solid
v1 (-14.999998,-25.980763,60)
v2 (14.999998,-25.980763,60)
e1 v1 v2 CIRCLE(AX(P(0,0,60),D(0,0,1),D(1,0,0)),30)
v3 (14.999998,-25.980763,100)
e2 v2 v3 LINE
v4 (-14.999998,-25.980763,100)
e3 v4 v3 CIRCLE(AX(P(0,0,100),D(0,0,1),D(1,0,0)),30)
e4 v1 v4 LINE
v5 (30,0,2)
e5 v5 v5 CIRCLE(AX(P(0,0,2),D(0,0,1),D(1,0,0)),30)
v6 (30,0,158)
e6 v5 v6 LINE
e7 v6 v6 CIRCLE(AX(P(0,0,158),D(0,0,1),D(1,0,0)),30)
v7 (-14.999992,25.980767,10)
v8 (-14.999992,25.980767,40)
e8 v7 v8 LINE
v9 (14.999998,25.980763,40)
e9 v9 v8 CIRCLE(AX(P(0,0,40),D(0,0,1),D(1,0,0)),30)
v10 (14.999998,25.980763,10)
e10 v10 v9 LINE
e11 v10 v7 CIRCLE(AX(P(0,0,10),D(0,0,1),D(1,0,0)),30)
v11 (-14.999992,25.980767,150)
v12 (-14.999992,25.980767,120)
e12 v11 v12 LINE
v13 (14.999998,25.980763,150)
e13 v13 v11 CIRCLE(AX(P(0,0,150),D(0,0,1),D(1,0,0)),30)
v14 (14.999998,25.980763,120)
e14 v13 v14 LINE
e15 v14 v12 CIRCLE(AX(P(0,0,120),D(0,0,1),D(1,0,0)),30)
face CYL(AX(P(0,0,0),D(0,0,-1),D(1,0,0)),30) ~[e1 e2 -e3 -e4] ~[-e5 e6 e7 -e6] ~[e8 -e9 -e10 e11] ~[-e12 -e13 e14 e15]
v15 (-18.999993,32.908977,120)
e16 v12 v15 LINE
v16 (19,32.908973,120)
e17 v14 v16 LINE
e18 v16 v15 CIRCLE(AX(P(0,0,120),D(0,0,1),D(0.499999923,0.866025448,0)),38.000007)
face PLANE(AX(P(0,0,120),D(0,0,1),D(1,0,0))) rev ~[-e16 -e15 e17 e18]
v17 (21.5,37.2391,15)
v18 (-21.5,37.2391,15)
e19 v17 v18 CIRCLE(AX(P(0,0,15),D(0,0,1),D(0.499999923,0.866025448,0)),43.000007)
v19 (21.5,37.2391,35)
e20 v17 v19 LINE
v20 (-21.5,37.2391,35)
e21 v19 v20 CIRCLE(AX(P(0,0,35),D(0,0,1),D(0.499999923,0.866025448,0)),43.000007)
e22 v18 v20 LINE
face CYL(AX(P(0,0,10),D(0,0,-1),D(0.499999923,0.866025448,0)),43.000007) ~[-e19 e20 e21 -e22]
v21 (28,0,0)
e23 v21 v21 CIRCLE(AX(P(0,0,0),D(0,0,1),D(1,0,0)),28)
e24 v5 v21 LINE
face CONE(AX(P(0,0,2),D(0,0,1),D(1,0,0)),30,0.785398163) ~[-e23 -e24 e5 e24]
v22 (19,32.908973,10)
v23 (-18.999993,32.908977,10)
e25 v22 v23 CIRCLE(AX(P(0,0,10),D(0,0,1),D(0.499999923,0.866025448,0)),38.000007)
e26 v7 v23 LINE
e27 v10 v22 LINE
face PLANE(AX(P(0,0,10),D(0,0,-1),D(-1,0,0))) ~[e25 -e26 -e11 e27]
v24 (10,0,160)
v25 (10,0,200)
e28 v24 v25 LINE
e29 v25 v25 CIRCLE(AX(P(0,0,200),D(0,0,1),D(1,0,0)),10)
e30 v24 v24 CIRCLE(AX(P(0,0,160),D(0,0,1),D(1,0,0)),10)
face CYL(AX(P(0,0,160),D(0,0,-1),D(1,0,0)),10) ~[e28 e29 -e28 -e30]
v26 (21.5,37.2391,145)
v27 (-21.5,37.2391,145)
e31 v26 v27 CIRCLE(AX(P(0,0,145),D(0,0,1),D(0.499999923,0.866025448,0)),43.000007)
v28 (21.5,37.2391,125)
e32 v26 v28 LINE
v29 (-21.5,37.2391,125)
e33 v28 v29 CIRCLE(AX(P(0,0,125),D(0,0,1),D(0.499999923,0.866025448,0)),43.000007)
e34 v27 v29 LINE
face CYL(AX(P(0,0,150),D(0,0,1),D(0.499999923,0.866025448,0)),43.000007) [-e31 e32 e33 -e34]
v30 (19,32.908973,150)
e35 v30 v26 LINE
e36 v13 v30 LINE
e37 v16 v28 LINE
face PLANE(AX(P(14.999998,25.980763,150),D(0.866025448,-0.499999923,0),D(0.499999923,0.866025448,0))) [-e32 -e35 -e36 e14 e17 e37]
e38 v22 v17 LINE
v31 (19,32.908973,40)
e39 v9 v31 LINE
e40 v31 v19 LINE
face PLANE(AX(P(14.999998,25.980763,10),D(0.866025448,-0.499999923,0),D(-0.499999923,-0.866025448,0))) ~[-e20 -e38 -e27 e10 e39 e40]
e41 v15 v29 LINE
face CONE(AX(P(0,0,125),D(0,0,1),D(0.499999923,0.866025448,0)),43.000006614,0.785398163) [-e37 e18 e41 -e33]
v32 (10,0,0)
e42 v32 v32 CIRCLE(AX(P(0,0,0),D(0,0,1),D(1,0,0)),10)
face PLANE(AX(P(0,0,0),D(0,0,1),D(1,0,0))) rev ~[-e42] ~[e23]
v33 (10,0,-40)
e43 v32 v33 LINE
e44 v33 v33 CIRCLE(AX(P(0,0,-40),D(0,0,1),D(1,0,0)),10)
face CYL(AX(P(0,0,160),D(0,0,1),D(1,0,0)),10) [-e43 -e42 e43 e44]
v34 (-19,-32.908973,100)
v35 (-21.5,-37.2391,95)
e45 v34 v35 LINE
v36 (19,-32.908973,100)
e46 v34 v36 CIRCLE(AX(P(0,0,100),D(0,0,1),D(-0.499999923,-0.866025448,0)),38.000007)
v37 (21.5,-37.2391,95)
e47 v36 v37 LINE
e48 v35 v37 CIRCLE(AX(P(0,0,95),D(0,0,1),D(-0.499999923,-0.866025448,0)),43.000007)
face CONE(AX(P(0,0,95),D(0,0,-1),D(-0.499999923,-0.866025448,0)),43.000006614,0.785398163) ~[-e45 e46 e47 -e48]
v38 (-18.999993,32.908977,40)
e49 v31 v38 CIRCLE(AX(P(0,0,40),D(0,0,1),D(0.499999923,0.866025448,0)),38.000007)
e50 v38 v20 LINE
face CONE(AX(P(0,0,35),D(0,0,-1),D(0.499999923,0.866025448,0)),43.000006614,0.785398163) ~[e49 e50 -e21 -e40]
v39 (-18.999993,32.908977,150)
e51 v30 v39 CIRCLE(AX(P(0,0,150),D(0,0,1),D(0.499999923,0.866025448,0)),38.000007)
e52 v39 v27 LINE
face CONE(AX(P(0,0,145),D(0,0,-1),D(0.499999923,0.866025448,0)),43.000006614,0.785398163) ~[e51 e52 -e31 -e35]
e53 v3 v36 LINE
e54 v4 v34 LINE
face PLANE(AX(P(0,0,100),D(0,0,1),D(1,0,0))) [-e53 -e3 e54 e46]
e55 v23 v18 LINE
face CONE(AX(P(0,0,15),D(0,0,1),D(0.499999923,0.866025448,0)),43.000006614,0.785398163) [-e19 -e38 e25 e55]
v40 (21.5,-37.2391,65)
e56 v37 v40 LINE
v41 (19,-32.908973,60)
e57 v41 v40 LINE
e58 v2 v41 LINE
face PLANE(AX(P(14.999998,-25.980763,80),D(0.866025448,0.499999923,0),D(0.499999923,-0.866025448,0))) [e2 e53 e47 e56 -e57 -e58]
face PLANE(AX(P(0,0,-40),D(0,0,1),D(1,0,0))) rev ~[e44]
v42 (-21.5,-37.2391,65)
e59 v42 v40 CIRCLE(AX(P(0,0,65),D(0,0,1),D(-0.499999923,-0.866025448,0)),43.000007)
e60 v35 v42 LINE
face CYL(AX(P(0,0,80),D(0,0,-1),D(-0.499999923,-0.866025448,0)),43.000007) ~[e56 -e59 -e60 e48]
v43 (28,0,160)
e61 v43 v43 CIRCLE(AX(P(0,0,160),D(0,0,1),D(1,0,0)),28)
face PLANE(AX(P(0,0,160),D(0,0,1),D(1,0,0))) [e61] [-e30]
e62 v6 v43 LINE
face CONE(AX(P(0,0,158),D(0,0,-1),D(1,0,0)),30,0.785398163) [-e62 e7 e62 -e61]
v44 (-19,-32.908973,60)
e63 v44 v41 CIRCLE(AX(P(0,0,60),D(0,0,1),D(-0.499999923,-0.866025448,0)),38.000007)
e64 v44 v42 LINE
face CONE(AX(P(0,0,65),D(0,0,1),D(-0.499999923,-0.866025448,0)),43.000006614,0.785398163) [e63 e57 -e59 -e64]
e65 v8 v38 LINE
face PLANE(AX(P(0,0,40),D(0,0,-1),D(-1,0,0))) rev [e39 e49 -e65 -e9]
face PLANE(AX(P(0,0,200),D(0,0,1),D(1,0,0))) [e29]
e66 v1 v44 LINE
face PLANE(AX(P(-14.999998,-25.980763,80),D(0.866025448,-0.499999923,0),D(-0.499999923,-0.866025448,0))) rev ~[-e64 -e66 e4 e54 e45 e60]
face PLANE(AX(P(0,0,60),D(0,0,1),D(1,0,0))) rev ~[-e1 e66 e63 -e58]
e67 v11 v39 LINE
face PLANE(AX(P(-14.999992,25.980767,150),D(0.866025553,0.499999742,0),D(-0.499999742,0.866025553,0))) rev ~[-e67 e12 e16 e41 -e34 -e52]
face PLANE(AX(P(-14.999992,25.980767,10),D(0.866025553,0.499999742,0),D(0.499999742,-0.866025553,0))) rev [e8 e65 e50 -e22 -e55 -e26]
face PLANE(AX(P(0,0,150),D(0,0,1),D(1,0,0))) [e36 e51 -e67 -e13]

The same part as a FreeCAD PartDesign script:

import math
import FreeCAD as App
import Part
import Sketcher

V = App.Vector
Q = App.Units.Quantity


def edges_at(feature, points):
    """Names of the edges that pass closest to the given points."""
    edges = feature.Shape.Edges
    near = lambda p: min(range(len(edges)), key=lambda i: edges[i].distToShape(Part.Vertex(*p))[0])
    return sorted({f"Edge{near(p) + 1}" for p in points})

doc = App.newDocument("Part")
body = doc.addObject("PartDesign::Body", "Body")

# Sketch on XY plane
sketch1 = body.newObject("Sketcher::SketchObject", "Sketch")
sketch1.AttachmentSupport = (doc.getObject("XY_Plane"), [""])
sketch1.MapMode = "FlatFace"
sketch1.addGeometry(Part.Circle(V(0, 0, 0), V(0, 0, 1), 30), False)
sketch1.addConstraint([
    Sketcher.Constraint("Coincident", 0, 3, -1, 1),
    Sketcher.Constraint("Diameter", 0, Q("60 mm")),
])
pad1 = body.newObject("PartDesign::Pad", "Pad")
pad1.Profile = sketch1
pad1.Length = 160

# Sketch on XY plane
sketch2 = body.newObject("Sketcher::SketchObject", "Sketch001")
sketch2.AttachmentSupport = (doc.getObject("XY_Plane"), [""])
sketch2.MapMode = "FlatFace"
sketch2.AttachmentOffset = App.Placement(V(0, 0, 150), App.Rotation())
sketch2.addGeometry([
    Part.ArcOfCircle(Part.Circle(V(0, 0, 0), V(0, 0, 1), 30), math.radians(60), math.radians(120)),
    Part.LineSegment(V(15, 26, 0), V(22, 37, 0)),
    Part.ArcOfCircle(Part.Circle(V(0, 0, 0), V(0, 0, 1), 43), math.radians(60), math.radians(120)),
    Part.LineSegment(V(-21, 37, 0), V(-15, 26, 0)),
], False)
sketch2.addConstraint([
    Sketcher.Constraint("Coincident", 0, 1, 1, 1),
    Sketcher.Constraint("Coincident", 1, 2, 2, 1),
    Sketcher.Constraint("Coincident", 2, 2, 3, 1),
    Sketcher.Constraint("Coincident", 3, 2, 0, 2),
    Sketcher.Constraint("Coincident", 0, 3, -1, 1),
    Sketcher.Constraint("Coincident", 2, 3, -1, 1),
    Sketcher.Constraint("Horizontal", 1, 2, 2, 2),
    Sketcher.Constraint("Horizontal", 0, 1, 3, 2),
    Sketcher.Constraint("Radius", 0, Q("30 mm")),
    Sketcher.Constraint("Radius", 2, Q("43 mm")),
    Sketcher.Constraint("Angle", 1, Q("60 deg")),
    Sketcher.Constraint("DistanceX", 2, 2, 1, 2, Q("43 mm")),
])
pad2 = body.newObject("PartDesign::Pad", "Pad001")
pad2.Profile = sketch2
pad2.Length = 30
pad2.Reversed = True
doc.recompute()

datumplane = body.newObject("PartDesign::Plane", "DatumPlane")
datumplane.AttachmentSupport = (doc.getObject("XY_Plane"), [""])
datumplane.MapMode = "FlatFace"
datumplane.AttachmentOffset = App.Placement(V(0, 0, 80), App.Rotation())
mirrored = body.newObject("PartDesign::Mirrored", "Mirrored")
mirrored.Originals = [pad2]
mirrored.MirrorPlane = (datumplane, [""])
body.Tip = mirrored

# Sketch on XY plane
sketch3 = body.newObject("Sketcher::SketchObject", "Sketch002")
sketch3.AttachmentSupport = (doc.getObject("XY_Plane"), [""])
sketch3.MapMode = "FlatFace"
sketch3.AttachmentOffset = App.Placement(V(0, 0, 80), App.Rotation())
sketch3.addGeometry([
    Part.LineSegment(V(22, -37, 0), V(15, -26, 0)),
    Part.ArcOfCircle(Part.Circle(V(0, 0, 0), V(0, 0, 1), 30), math.radians(-120), math.radians(-60)),
    Part.LineSegment(V(-15, -26, 0), V(-22, -37, 0)),
    Part.ArcOfCircle(Part.Circle(V(0, 0, 0), V(0, 0, 1), 43), math.radians(-120), math.radians(-60)),
], False)
sketch3.addConstraint([
    Sketcher.Constraint("Coincident", 0, 2, 1, 2),
    Sketcher.Constraint("Coincident", 1, 1, 2, 1),
    Sketcher.Constraint("Coincident", 2, 2, 3, 1),
    Sketcher.Constraint("Coincident", 3, 2, 0, 1),
    Sketcher.Constraint("Coincident", 1, 3, -1, 1),
    Sketcher.Constraint("Coincident", 3, 3, -1, 1),
    Sketcher.Constraint("Horizontal", 0, 2, 1, 1),
    Sketcher.Constraint("Horizontal", 2, 2, 3, 2),
    Sketcher.Constraint("Radius", 1, Q("30 mm")),
    Sketcher.Constraint("Radius", 3, Q("43 mm")),
    Sketcher.Constraint("DistanceX", 2, 2, 3, 2, Q("43 mm")),
    Sketcher.Constraint("Angle", 0, Q("120 deg")),
])
pad3 = body.newObject("PartDesign::Pad", "Pad002")
pad3.Profile = sketch3
pad3.Length = 40
pad3.Midplane = True
doc.recompute()

chamfer = body.newObject("PartDesign::Chamfer", "Chamfer")
chamfer.Base = (pad3, edges_at(pad3, [
    (0, 43, 150),
    (0, 43, 120),
    (0, 43, 40),
    (0, 43, 10),
    (0, -43, 100),
    (0, -43, 60),
]))
chamfer.Size = 5
doc.recompute()

chamfer2 = body.newObject("PartDesign::Chamfer", "Chamfer001")
chamfer2.Base = (chamfer, edges_at(chamfer, [(-30, 0, 0), (-30, 0, 160)]))
chamfer2.Size = 2

# Sketch on XY plane
sketch4 = body.newObject("Sketcher::SketchObject", "Sketch003")
sketch4.AttachmentSupport = (doc.getObject("XY_Plane"), [""])
sketch4.MapMode = "FlatFace"
sketch4.AttachmentOffset = App.Placement(V(0, 0, 160), App.Rotation())
sketch4.addGeometry(Part.Circle(V(0, 0, 0), V(0, 0, 1), 10), False)
sketch4.addConstraint([
    Sketcher.Constraint("Coincident", 0, 3, -1, 1),
    Sketcher.Constraint("Diameter", 0, Q("20 mm")),
])
pad4 = body.newObject("PartDesign::Pad", "Pad003")
pad4.Profile = sketch4
pad4.Type = "TwoLengths"
pad4.Length = 40
pad4.Length2 = 200

doc.recompute()
